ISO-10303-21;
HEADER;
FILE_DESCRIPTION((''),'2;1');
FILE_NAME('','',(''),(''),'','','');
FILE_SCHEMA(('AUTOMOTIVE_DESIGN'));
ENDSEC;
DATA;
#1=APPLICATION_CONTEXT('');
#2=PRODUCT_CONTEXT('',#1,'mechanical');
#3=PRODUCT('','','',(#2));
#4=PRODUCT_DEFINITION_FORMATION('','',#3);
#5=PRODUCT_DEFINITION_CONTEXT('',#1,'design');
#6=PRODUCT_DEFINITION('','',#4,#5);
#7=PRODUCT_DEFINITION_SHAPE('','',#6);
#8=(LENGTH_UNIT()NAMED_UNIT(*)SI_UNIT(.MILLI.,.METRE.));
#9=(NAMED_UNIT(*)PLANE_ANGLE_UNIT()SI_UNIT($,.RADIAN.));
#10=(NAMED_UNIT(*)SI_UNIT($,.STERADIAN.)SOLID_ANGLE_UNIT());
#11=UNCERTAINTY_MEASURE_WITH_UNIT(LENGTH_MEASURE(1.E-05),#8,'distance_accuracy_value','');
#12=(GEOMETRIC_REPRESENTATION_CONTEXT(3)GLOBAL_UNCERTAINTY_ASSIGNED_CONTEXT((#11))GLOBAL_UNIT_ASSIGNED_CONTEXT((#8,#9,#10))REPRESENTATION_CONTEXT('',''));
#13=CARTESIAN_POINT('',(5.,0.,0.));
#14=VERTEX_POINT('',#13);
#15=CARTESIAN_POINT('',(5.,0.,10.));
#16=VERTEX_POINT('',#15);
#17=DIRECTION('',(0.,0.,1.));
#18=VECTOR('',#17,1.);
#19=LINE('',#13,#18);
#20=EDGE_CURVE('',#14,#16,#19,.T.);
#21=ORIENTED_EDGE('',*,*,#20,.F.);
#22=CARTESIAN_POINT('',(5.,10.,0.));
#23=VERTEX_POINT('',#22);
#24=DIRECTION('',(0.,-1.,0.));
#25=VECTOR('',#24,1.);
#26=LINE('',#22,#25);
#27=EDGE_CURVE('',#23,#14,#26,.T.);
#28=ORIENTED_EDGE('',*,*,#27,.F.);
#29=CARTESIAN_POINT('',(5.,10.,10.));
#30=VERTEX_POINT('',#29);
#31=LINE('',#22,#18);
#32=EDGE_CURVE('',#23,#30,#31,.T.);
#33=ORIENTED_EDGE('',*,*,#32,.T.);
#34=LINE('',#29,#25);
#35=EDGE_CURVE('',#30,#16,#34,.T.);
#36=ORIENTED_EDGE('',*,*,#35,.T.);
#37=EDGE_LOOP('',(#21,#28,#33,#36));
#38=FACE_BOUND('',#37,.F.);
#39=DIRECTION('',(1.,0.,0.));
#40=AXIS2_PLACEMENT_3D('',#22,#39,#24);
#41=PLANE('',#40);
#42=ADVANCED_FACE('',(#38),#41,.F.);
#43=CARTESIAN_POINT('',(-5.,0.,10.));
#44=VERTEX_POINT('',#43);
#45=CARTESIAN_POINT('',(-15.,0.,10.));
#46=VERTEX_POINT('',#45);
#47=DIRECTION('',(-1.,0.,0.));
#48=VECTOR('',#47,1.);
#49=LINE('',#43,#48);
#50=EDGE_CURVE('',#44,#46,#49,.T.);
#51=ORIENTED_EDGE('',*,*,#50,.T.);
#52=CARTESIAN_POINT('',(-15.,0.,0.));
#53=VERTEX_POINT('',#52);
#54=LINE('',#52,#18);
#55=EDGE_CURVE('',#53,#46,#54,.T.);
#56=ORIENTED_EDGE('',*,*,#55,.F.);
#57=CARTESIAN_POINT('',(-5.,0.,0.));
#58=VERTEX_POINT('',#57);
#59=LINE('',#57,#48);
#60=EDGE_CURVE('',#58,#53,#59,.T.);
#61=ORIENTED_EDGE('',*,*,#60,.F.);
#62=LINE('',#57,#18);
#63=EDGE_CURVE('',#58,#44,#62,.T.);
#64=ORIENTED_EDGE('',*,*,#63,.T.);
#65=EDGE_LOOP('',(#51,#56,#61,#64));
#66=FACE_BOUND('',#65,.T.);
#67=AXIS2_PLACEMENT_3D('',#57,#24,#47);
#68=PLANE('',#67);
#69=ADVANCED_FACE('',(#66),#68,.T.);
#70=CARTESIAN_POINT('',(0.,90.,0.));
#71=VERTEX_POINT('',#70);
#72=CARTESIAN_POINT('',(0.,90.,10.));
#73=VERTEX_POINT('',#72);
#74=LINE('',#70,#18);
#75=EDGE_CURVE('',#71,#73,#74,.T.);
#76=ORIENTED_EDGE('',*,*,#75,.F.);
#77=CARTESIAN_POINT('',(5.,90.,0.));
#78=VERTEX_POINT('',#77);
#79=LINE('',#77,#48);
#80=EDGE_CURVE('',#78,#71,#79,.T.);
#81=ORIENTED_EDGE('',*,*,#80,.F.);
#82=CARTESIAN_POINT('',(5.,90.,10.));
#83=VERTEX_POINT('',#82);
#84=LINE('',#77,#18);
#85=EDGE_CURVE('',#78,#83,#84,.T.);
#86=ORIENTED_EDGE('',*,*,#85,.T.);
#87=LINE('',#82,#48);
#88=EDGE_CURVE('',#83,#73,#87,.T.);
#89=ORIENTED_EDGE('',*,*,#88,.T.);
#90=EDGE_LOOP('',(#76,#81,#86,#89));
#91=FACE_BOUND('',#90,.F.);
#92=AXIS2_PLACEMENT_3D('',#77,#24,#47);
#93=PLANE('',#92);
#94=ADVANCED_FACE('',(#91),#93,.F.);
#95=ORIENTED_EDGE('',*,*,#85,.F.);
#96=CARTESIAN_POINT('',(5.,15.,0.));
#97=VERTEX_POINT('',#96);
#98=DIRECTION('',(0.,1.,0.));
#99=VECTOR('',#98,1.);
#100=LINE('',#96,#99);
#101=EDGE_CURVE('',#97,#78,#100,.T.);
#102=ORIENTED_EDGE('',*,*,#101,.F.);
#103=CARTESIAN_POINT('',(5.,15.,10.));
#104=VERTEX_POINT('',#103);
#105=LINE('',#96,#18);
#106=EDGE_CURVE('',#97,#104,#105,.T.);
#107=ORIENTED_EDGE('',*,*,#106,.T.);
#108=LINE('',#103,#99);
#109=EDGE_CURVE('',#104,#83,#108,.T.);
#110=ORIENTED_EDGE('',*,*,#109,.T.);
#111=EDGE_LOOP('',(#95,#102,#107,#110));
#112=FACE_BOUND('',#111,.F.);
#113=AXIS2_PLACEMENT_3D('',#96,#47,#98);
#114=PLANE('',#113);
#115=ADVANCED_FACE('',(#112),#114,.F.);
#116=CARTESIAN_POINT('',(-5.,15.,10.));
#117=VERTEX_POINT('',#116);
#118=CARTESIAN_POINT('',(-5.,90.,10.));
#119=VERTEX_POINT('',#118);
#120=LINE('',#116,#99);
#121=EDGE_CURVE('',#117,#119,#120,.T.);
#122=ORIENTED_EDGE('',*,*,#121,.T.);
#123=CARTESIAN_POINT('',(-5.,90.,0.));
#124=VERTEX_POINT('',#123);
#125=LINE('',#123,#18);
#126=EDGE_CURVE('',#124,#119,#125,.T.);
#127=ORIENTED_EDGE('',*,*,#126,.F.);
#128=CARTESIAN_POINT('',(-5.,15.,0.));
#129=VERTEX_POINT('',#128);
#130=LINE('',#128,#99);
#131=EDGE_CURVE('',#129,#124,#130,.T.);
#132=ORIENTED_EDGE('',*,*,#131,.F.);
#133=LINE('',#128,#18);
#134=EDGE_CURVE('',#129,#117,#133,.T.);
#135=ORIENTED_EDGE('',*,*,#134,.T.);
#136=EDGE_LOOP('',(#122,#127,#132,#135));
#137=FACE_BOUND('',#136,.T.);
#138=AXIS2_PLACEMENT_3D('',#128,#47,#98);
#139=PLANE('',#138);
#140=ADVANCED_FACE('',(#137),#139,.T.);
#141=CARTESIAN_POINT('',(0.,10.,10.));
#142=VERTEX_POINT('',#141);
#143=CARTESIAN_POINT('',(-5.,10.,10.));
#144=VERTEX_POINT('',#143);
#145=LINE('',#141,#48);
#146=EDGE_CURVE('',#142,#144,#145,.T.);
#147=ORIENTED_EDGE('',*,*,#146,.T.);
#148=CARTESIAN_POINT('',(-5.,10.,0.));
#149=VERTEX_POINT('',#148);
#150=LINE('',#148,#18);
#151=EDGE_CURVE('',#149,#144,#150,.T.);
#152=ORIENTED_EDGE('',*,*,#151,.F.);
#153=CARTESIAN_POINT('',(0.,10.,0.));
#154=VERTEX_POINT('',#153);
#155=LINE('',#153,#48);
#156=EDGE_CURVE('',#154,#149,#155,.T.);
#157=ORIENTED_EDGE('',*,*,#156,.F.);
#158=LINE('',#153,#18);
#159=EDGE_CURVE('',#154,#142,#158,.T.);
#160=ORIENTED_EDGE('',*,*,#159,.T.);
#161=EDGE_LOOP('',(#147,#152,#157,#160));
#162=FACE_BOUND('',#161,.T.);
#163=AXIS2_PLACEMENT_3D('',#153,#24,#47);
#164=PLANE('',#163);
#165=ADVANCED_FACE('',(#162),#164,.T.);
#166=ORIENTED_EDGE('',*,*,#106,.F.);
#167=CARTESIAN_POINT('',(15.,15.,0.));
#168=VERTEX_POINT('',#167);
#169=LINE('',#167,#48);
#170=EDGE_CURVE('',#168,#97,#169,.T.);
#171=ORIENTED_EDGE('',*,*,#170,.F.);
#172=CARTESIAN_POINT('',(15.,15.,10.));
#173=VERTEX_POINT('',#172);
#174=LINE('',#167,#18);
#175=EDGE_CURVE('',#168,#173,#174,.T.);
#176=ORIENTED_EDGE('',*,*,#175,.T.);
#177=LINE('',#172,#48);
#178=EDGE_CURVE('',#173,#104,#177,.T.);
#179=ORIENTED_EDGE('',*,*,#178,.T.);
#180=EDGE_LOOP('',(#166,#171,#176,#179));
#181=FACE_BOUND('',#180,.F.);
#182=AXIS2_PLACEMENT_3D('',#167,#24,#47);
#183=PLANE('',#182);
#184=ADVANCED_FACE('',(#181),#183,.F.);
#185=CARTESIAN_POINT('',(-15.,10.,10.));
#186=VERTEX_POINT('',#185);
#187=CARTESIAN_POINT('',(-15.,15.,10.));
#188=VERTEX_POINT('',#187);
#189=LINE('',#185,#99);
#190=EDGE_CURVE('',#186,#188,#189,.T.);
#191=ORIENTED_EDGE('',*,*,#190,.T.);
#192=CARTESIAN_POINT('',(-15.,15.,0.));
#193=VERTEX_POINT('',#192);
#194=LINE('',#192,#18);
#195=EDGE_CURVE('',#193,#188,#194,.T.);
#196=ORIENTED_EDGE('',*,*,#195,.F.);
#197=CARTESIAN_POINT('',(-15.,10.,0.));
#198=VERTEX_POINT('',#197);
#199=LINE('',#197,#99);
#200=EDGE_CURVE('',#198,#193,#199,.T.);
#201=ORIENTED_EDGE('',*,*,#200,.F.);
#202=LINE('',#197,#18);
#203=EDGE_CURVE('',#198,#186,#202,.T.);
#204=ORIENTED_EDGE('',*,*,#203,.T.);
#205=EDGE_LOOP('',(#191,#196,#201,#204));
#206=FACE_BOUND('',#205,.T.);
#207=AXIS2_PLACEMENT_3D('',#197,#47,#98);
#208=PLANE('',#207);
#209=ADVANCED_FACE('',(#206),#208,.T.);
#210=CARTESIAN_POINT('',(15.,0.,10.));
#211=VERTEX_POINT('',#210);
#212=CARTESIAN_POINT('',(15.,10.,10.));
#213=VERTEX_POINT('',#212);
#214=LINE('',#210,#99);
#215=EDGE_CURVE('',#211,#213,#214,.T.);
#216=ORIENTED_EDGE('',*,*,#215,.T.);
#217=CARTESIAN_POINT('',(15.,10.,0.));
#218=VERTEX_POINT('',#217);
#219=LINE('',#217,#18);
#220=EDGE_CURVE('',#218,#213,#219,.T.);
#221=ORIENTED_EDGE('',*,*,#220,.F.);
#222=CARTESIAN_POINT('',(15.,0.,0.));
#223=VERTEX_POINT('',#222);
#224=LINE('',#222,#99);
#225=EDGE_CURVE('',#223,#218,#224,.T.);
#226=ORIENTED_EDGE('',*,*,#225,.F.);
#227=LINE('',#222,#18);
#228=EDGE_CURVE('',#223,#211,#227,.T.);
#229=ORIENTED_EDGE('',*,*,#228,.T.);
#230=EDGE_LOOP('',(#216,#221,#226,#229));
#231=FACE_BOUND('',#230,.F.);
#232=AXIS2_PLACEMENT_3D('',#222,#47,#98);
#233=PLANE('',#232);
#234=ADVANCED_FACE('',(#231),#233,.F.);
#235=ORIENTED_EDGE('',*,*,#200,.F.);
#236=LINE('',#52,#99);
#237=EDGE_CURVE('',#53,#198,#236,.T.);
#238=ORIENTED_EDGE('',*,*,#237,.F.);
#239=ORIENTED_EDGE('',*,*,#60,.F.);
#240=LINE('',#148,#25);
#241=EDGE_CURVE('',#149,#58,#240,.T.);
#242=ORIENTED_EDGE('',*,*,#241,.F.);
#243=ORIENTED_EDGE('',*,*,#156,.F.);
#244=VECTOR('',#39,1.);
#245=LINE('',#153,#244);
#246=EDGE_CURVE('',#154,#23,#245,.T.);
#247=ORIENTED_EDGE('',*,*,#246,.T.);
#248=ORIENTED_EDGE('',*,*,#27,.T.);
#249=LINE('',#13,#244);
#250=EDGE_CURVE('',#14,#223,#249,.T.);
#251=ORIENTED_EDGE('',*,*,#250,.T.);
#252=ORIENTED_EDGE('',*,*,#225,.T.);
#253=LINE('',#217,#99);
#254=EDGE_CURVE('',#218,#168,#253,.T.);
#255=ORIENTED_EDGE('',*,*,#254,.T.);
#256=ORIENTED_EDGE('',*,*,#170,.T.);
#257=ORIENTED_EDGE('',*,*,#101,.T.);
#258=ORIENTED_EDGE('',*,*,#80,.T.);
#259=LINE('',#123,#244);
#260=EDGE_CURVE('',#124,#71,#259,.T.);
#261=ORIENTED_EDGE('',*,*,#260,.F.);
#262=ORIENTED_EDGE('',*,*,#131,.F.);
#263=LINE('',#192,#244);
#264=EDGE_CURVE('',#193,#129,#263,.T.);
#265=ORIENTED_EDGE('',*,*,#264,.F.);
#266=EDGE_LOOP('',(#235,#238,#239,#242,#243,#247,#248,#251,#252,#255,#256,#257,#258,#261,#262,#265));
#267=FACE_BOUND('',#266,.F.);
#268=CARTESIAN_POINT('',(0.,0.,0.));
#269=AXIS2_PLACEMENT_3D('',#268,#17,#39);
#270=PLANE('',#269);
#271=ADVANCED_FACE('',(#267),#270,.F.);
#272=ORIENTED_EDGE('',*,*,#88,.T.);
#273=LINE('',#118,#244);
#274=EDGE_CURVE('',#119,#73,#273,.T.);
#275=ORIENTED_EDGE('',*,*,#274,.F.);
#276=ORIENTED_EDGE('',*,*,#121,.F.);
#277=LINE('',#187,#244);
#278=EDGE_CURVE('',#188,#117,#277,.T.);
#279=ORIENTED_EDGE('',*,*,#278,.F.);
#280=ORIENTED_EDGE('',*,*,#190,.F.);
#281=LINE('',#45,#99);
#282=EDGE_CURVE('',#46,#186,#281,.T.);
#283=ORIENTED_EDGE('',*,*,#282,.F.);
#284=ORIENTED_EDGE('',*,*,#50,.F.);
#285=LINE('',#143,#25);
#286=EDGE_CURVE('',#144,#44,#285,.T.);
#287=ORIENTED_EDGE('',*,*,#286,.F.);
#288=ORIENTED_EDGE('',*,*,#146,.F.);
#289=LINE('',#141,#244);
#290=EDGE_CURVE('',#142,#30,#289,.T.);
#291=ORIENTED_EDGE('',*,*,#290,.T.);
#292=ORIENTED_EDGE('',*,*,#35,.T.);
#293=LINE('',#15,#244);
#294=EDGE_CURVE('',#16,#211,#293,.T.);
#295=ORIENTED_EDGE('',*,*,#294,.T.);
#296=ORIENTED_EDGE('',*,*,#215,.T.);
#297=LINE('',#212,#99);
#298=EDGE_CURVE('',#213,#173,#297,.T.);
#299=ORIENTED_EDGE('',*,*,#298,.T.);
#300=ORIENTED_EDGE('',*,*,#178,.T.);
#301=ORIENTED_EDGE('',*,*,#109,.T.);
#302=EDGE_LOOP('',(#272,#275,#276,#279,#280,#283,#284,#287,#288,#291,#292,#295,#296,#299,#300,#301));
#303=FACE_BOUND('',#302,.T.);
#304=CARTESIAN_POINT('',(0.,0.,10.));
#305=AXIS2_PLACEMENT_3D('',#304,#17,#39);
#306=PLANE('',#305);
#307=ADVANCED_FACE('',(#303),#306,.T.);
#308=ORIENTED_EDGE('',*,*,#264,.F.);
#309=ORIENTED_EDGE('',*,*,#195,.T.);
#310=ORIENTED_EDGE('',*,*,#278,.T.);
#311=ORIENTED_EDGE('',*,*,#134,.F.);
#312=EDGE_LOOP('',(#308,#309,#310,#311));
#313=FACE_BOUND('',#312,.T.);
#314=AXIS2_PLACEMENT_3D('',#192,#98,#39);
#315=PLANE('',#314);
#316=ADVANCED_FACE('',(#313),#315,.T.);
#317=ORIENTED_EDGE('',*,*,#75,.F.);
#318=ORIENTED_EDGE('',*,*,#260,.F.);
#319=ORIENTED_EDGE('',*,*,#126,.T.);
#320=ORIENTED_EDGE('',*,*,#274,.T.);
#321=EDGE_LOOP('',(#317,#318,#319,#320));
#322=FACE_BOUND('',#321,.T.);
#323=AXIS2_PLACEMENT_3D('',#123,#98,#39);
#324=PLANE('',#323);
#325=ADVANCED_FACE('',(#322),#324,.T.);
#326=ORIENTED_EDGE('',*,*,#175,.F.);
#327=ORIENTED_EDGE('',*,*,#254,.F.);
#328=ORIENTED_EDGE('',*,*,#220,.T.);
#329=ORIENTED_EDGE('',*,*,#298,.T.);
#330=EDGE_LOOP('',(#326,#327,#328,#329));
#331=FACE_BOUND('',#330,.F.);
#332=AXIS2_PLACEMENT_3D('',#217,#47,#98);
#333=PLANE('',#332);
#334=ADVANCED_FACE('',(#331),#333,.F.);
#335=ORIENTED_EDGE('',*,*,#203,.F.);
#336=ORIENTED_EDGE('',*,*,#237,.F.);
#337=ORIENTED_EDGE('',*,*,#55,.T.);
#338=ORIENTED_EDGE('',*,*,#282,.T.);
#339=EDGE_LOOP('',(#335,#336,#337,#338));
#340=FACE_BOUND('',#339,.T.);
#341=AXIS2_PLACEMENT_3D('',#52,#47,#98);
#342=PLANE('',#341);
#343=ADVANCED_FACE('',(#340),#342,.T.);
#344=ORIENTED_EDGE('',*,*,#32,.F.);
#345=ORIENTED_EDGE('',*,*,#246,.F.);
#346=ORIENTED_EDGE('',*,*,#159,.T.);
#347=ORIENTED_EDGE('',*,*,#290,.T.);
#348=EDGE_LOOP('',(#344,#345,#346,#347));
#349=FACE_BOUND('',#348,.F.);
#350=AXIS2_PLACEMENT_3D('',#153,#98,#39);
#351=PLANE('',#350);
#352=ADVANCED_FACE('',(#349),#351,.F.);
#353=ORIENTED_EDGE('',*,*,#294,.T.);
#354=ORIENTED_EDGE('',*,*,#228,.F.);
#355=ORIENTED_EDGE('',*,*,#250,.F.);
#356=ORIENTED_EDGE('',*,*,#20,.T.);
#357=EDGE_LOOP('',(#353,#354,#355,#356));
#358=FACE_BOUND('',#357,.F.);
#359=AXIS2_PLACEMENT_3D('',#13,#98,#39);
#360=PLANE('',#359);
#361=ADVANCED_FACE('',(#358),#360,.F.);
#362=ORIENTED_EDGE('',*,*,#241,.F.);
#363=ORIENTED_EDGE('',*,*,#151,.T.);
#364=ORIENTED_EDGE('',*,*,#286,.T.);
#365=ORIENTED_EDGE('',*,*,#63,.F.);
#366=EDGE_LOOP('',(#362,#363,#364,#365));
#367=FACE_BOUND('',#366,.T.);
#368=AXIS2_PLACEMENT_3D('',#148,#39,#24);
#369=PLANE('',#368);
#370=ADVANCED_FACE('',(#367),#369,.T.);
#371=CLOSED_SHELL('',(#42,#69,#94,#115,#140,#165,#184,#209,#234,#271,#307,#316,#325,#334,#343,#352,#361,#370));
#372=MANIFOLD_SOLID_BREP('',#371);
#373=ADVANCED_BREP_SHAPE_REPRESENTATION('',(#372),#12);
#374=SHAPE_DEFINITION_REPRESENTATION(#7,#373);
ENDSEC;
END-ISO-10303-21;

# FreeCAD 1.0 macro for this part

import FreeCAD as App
import Part
import Sketcher
Q = App.Units.Quantity


def add_polygon(sketch, points):
    """Adds a closed chain of lines whose ends are joined by coincident constraints."""
    first, n = sketch.GeometryCount, len(points)
    for a, b in zip(points, points[1:] + points[:1]):
        sketch.addGeometry(Part.LineSegment(App.Vector(*a, 0), App.Vector(*b, 0)), False)
    for i in range(n):
        sketch.addConstraint(Sketcher.Constraint("Coincident", first + i, 2, first + (i + 1) % n, 1))

doc = App.newDocument("Part")
params = doc.addObject("Spreadsheet::Sheet", "Params")
for row, (alias, value) in enumerate([
    ("sketch1_width", "10 mm"),
    ("sketch1_height", "75 mm"),
    ("pad1_length", "10 mm"),
], start=1):
    params.set(f"A{row}", alias)
    params.set(f"B{row}", "=" + value)
    params.setAlias(f"B{row}", alias)

body = doc.addObject("PartDesign::Body", "Body")

sketch1 = doc.addObject("Sketcher::SketchObject", "Sketch")
body.addObject(sketch1)
sketch1.AttachmentSupport = (doc.XY_Plane, [""])
sketch1.MapMode = "FlatFace"
add_polygon(sketch1, [(-5, 10), (5, 10), (5, 0), (15, 0), (15, 15), (5, 15), (5, 90), (-5, 90), (-5, 15), (-15, 15), (-15, 0), (-5, 0)])
sketch1.addConstraint(Sketcher.Constraint("Horizontal", 0))
sketch1.addConstraint(Sketcher.Constraint("Vertical", 1))
sketch1.addConstraint(Sketcher.Constraint("Horizontal", 2))
sketch1.addConstraint(Sketcher.Constraint("Vertical", 3))
sketch1.addConstraint(Sketcher.Constraint("Horizontal", 4))
sketch1.addConstraint(Sketcher.Constraint("Vertical", 5))
sketch1.addConstraint(Sketcher.Constraint("Horizontal", 6))
sketch1.addConstraint(Sketcher.Constraint("Vertical", 7))
sketch1.addConstraint(Sketcher.Constraint("Horizontal", 8))
sketch1.addConstraint(Sketcher.Constraint("Vertical", 9))
sketch1.addConstraint(Sketcher.Constraint("Horizontal", 10))
sketch1.addConstraint(Sketcher.Constraint("Vertical", 11))
sketch1.addConstraint(Sketcher.Constraint("Symmetric", 2, 2, 9, 2, -1, 1))
sketch1.addConstraint(Sketcher.Constraint("Symmetric", 4, 2, 7, 2, -2))
sketch1.addConstraint(Sketcher.Constraint("Symmetric", 1, 2, 10, 2, -2))
sketch1.addConstraint(Sketcher.Constraint("Vertical", 1, 2, 4, 2))
sketch1.addConstraint(Sketcher.Constraint("Equal", 0, 2))
sketch1.addConstraint(Sketcher.Constraint("Equal", 10, 1))
sketch1.addConstraint(Sketcher.Constraint("DistanceX", 0, 1, 0, 2, Q("10 mm")))
sketch1.addConstraint(Sketcher.Constraint("DistanceY", 5, 1, 5, 2, Q("75 mm")))
sketch1.addConstraint(Sketcher.Constraint("DistanceY", -1, 1, 5, 2, Q("90 mm")))
sketch1.setExpression("Constraints[30]", "Params.sketch1_width")
sketch1.setExpression("Constraints[31]", "Params.sketch1_height")
pad1 = doc.addObject("PartDesign::Pad", "Pad")
body.addObject(pad1)
pad1.Profile = sketch1
pad1.setExpression("Length", "Params.pad1_length")

doc.recompute()
